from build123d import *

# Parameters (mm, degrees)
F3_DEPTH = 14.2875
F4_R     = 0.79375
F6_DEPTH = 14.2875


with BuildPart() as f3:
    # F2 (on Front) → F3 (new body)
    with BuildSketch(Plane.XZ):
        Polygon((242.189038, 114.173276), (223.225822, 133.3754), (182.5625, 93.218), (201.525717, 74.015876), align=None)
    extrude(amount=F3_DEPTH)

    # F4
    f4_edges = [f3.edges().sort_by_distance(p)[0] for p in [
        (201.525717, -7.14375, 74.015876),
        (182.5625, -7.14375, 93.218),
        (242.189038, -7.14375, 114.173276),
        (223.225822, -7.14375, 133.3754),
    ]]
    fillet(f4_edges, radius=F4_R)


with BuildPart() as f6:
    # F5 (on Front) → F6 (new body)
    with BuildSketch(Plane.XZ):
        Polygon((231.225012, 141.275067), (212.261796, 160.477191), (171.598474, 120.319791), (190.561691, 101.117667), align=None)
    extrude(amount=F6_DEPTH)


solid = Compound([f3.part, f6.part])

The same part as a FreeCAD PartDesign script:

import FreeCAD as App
import Part
import Sketcher
from FreeCAD import Vector
Q = App.Units.Quantity


def edges_at(feature, points):
    """Names of the edges that pass closest to the given points."""
    edges = feature.Shape.Edges
    near = lambda p: min(range(len(edges)), key=lambda i: edges[i].distToShape(Part.Vertex(*p))[0])
    return sorted({f"Edge{near(p) + 1}" for p in points})


def add_polygon(sketch, points):
    """Adds a closed chain of lines whose ends are joined by coincident constraints."""
    first, n = sketch.GeometryCount, len(points)
    for a, b in zip(points, points[1:] + points[:1]):
        sketch.addGeometry(Part.LineSegment(App.Vector(*a, 0), App.Vector(*b, 0)), False)
    for i in range(n):
        sketch.addConstraint(Sketcher.Constraint("Coincident", first + i, 2, first + (i + 1) % n, 1))

doc = App.newDocument("Part")
body = doc.addObject("PartDesign::Body", "Body")

# Sketch on XZ plane
sketch1 = doc.addObject("Sketcher::SketchObject", "Sketch")
body.addObject(sketch1)
sketch1.AttachmentSupport = (doc.XZ_Plane, [""])
sketch1.MapMode = "FlatFace"
add_polygon(sketch1, [(242.189038, 114.173276), (223.225822, 133.3754), (182.5625, 93.218), (201.525717, 74.015876)])  # lines 0-3
sketch1.addConstraint([
    Sketcher.Constraint("Perpendicular", 0, 1),
    Sketcher.Constraint("Perpendicular", 1, 2),
    Sketcher.Constraint("Perpendicular", 2, 3),
    Sketcher.Constraint("Distance", 1, Q("2.25 in")),
    Sketcher.Constraint("DistanceY", -1, 1, 1, 2, Q("3.67 in")),
    Sketcher.Constraint("Distance", 0, Q("1.0625 in")),
    Sketcher.Constraint("DistanceY", -1, 1, 0, 2, Q("5.251 in")),
    Sketcher.Constraint("DistanceX", -1, 1, 1, 2, Q("7.1875 in")),
])
pad1 = doc.addObject("PartDesign::Pad", "Pad")
body.addObject(pad1)
pad1.Profile = sketch1
pad1.Length = Q("0.5625 in")
doc.recompute()

fillet = doc.addObject("PartDesign::Fillet", "Fillet")
body.addObject(fillet)
fillet.Base = (pad1, edges_at(pad1, [
    (201.526, -7.144, 74.016),
    (182.562, -7.144, 93.218),
    (242.189, -7.144, 114.173),
    (223.226, -7.144, 133.375),
]))
fillet.Radius = Q("0.03125 in")
body2 = doc.addObject("PartDesign::Body", "Body001")

# Sketch on XZ plane
sketch2 = doc.addObject("Sketcher::SketchObject", "Sketch001")
body2.addObject(sketch2)
sketch2.AttachmentSupport = (doc.getObject("XZ_Plane001"), [""])
sketch2.MapMode = "FlatFace"
add_polygon(sketch2, [(231.225012, 141.275067), (212.261796, 160.477191), (171.598474, 120.319791), (190.561691, 101.117667)])  # lines 0-3
sketch2.addConstraint([
    Sketcher.Constraint("Perpendicular", 0, 1),
    Sketcher.Constraint("Perpendicular", 1, 2),
    Sketcher.Constraint("Perpendicular", 2, 3),
    Sketcher.Constraint("Distance", 1, Q("2.25 in")),
    Sketcher.Constraint("Distance", 0, Q("1.0625 in")),
    Sketcher.Constraint("DistanceY", 1, 2, 0, 2, Q("1.581 in")),
    Sketcher.Constraint("DistanceY", -1, 1, 0, 2, Q("160.477191 mm")),
    Sketcher.Constraint("DistanceX", -1, 1, 2, 2, Q("190.561691 mm")),
])
pad2 = doc.addObject("PartDesign::Pad", "Pad001")
body2.addObject(pad2)
pad2.Profile = sketch2
pad2.Length = Q("0.5625 in")

doc.recompute()
